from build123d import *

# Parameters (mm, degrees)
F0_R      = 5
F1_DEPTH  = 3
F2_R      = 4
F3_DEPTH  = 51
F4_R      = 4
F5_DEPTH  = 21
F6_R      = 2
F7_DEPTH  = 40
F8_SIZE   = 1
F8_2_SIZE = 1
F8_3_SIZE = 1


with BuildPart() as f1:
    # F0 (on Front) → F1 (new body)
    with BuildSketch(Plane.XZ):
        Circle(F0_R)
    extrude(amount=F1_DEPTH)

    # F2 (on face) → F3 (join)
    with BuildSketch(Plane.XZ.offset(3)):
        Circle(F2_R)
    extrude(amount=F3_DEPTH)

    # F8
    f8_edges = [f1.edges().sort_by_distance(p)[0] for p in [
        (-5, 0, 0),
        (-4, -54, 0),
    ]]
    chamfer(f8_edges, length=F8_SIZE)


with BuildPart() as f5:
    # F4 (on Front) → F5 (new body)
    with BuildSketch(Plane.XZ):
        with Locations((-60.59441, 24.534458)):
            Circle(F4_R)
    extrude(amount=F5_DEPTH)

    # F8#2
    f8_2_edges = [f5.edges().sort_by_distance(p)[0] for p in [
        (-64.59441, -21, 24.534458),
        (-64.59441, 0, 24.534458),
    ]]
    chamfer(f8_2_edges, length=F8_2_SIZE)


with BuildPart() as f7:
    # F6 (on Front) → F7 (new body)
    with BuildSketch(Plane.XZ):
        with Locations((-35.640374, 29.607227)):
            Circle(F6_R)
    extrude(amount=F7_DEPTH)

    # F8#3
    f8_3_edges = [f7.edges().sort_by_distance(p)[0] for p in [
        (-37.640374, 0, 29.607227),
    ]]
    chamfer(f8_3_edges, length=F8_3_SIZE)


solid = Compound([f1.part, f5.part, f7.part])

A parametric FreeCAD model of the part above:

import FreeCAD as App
import Part
import Sketcher
from FreeCAD import Vector
Q = App.Units.Quantity


def edges_at(feature, points):
    """Names of the edges that pass closest to the given points."""
    edges = feature.Shape.Edges
    near = lambda p: min(range(len(edges)), key=lambda i: edges[i].distToShape(Part.Vertex(*p))[0])
    return sorted({f"Edge{near(p) + 1}" for p in points})

doc = App.newDocument("Part")
body = doc.addObject("PartDesign::Body", "Body")

# Sketch on XZ plane
sketch1 = doc.addObject("Sketcher::SketchObject", "Sketch")
body.addObject(sketch1)
sketch1.AttachmentSupport = (doc.XZ_Plane, [""])
sketch1.MapMode = "FlatFace"
sketch1.addGeometry(Part.Circle(Vector(0, 0, 0), Vector(0, 0, 1), 5), False)
sketch1.addConstraint([
    Sketcher.Constraint("Coincident", 0, 3, -1, 1),
    Sketcher.Constraint("Diameter", 0, Q("10 mm")),
])
pad1 = doc.addObject("PartDesign::Pad", "Pad")
body.addObject(pad1)
pad1.Profile = sketch1
pad1.Length = 3

# Sketch on XZ plane
sketch2 = doc.addObject("Sketcher::SketchObject", "Sketch001")
body.addObject(sketch2)
sketch2.AttachmentSupport = (doc.XZ_Plane, [""])
sketch2.MapMode = "FlatFace"
sketch2.AttachmentOffset = App.Placement(Vector(0, 0, 3), App.Rotation())
sketch2.addGeometry(Part.Circle(Vector(0, 0, 0), Vector(0, 0, 1), 4), False)
sketch2.addConstraint([
    Sketcher.Constraint("Coincident", 0, 3, -1, 1),
    Sketcher.Constraint("Diameter", 0, Q("8 mm")),
])
pad2 = doc.addObject("PartDesign::Pad", "Pad001")
body.addObject(pad2)
pad2.Profile = sketch2
pad2.Length = 51
doc.recompute()

chamfer = doc.addObject("PartDesign::Chamfer", "Chamfer")
body.addObject(chamfer)
chamfer.Base = (pad2, edges_at(pad2, [(-5, 0, 0), (-4, -54, 0)]))
chamfer.Size = 1
body2 = doc.addObject("PartDesign::Body", "Body001")

# Sketch on XZ plane
sketch3 = doc.addObject("Sketcher::SketchObject", "Sketch002")
body2.addObject(sketch3)
sketch3.AttachmentSupport = (doc.getObject("XZ_Plane001"), [""])
sketch3.MapMode = "FlatFace"
sketch3.addGeometry(Part.Circle(Vector(-60.6, 24.5, 0), Vector(0, 0, 1), 4), False)
sketch3.addConstraint([
    Sketcher.Constraint("Diameter", 0, Q("8 mm")),
    Sketcher.Constraint("DistanceX", 0, 3, -1, 1, Q("60.59441 mm")),
    Sketcher.Constraint("DistanceY", -1, 1, 0, 3, Q("24.534458 mm")),
])
pad3 = doc.addObject("PartDesign::Pad", "Pad002")
body2.addObject(pad3)
pad3.Profile = sketch3
pad3.Length = 21
doc.recompute()

chamfer2 = doc.addObject("PartDesign::Chamfer", "Chamfer001")
body2.addObject(chamfer2)
chamfer2.Base = (pad3, edges_at(pad3, [(-64.594, -21, 24.534), (-64.594, 0, 24.534)]))
chamfer2.Size = 1
body3 = doc.addObject("PartDesign::Body", "Body002")

# Sketch on XZ plane
sketch4 = doc.addObject("Sketcher::SketchObject", "Sketch003")
body3.addObject(sketch4)
sketch4.AttachmentSupport = (doc.getObject("XZ_Plane002"), [""])
sketch4.MapMode = "FlatFace"
sketch4.addGeometry(Part.Circle(Vector(-35.6, 29.6, 0), Vector(0, 0, 1), 2), False)
sketch4.addConstraint([
    Sketcher.Constraint("Diameter", 0, Q("4 mm")),
    Sketcher.Constraint("DistanceX", 0, 3, -1, 1, Q("35.640374 mm")),
    Sketcher.Constraint("DistanceY", -1, 1, 0, 3, Q("29.607227 mm")),
])
pad4 = doc.addObject("PartDesign::Pad", "Pad003")
body3.addObject(pad4)
pad4.Profile = sketch4
pad4.Length = 40
doc.recompute()

chamfer3 = doc.addObject("PartDesign::Chamfer", "Chamfer002")
body3.addObject(chamfer3)
chamfer3.Base = (pad4, edges_at(pad4, [(-37.64, 0, 29.607)]))
chamfer3.Size = 1

doc.recompute()
